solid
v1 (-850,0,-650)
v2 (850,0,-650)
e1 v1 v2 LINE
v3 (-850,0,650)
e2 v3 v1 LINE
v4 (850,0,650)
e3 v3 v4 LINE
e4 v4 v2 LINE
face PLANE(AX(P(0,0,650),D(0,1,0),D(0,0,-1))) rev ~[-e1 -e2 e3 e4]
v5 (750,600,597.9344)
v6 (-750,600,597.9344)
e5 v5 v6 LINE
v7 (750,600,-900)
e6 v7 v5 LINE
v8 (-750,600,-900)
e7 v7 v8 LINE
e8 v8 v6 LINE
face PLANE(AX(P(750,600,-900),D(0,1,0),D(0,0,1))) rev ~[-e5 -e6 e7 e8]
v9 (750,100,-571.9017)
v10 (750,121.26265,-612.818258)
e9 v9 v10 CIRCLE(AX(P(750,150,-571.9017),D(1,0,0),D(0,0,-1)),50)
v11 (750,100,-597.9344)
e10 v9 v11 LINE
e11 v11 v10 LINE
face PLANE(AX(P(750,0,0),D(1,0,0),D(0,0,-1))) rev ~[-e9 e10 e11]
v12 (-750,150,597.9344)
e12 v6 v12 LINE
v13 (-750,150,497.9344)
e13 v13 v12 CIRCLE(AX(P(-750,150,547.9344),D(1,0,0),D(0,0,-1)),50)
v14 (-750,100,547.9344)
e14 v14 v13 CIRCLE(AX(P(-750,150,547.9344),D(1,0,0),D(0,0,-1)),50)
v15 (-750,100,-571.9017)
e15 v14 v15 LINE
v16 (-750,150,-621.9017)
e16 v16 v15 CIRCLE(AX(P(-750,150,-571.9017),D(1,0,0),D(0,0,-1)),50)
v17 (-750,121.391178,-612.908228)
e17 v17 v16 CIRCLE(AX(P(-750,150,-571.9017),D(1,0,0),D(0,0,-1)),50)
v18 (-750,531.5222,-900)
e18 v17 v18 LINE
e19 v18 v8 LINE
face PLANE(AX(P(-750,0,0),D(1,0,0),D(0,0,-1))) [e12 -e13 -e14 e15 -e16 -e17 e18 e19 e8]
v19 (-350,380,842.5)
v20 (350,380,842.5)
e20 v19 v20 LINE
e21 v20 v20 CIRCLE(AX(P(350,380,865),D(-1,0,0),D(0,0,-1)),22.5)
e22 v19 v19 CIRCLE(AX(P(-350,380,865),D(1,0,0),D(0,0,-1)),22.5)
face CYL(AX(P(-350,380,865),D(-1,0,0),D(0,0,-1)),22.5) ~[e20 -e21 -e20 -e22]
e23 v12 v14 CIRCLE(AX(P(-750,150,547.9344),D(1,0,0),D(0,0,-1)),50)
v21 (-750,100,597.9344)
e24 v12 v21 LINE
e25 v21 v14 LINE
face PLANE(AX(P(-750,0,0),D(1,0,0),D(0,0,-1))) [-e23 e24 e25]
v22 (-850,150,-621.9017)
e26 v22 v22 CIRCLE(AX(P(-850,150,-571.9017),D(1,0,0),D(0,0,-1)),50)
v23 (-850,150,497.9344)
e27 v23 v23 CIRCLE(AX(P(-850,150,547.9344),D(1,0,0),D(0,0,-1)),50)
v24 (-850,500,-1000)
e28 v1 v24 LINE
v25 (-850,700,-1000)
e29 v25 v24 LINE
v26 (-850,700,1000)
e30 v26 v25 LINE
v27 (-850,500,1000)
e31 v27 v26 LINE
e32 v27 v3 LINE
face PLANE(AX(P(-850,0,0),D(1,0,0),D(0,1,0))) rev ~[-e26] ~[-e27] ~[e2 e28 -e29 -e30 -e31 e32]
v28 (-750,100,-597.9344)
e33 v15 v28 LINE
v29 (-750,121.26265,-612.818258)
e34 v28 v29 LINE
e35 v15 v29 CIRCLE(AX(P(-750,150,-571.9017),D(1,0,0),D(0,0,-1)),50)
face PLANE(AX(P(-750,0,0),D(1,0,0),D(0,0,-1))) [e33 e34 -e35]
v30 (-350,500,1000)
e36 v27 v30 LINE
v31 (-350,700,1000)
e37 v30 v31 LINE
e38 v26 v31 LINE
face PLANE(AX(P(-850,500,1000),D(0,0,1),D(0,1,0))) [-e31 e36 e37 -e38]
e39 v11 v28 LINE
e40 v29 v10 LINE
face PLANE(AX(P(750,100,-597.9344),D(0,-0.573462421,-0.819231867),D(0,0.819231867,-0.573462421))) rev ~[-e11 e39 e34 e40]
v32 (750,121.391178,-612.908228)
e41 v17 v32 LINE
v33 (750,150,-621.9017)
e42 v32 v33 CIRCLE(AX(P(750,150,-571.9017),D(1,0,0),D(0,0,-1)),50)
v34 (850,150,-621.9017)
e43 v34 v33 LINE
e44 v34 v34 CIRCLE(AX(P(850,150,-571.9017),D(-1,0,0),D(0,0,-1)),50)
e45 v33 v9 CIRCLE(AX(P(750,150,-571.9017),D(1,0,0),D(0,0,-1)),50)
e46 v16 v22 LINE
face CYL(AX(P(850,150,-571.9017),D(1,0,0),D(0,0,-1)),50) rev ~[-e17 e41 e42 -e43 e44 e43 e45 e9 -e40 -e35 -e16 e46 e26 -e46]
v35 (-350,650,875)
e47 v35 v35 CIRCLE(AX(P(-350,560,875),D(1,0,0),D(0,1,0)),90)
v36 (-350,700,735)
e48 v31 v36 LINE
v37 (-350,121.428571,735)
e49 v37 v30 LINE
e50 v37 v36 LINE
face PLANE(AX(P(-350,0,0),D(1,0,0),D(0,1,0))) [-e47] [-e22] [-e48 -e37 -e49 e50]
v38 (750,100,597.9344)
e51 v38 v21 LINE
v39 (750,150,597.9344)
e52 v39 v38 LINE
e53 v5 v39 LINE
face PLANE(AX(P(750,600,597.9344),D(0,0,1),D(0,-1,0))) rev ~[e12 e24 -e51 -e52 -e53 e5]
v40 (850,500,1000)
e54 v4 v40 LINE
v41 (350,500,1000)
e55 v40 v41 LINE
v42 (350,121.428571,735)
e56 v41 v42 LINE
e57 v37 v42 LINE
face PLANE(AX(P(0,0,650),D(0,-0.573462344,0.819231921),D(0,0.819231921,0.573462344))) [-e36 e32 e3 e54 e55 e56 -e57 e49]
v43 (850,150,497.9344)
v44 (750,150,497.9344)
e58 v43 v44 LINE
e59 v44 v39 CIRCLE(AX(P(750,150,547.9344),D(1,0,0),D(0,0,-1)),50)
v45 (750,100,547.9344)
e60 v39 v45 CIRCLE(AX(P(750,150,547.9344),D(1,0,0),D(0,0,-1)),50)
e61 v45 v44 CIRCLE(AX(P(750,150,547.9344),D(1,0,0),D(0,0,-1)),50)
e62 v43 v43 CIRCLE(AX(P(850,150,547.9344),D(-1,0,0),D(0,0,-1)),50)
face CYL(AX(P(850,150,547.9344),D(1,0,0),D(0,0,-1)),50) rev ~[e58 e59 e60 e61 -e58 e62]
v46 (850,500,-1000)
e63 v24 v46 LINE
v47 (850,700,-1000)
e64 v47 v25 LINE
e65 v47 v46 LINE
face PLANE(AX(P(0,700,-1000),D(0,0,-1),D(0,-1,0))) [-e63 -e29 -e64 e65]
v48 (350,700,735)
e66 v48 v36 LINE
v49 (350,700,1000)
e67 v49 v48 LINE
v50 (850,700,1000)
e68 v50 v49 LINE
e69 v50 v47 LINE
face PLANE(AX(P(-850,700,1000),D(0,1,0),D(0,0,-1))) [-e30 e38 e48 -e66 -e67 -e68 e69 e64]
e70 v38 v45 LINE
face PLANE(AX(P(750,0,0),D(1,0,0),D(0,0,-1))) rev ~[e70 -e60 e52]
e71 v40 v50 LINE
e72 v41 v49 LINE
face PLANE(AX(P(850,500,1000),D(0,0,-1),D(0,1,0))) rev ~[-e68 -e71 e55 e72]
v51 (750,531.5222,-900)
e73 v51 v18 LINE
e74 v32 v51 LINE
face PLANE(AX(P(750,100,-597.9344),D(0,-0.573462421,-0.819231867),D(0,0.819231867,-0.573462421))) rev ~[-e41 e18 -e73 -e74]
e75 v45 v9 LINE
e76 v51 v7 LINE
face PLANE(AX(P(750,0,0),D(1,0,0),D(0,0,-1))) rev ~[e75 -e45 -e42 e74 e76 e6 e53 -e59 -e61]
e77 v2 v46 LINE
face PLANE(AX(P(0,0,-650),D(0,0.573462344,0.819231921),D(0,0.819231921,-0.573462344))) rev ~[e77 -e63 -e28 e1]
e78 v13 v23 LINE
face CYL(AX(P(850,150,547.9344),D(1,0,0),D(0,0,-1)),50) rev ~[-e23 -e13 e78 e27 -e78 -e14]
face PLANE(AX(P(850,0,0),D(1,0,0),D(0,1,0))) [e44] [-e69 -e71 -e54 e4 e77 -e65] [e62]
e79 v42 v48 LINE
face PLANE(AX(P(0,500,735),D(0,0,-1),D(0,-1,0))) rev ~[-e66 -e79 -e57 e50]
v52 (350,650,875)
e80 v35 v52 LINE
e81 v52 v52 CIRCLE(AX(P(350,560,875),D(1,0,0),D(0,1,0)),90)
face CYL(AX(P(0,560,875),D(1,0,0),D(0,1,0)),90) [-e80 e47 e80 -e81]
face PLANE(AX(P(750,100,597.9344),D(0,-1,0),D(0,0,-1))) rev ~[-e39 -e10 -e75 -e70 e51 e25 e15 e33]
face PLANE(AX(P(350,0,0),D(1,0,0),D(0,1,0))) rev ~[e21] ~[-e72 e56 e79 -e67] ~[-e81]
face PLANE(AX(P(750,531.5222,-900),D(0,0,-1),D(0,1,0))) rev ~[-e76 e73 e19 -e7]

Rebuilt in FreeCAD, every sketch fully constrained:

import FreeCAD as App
import Part
import Sketcher

V = App.Vector
Q = App.Units.Quantity

doc = App.newDocument("Part")
params = doc.addObject("Spreadsheet::Sheet", "Params")
for row, (alias, value) in enumerate([
    ("sketch1_diameter", "180 mm"),
    ("sketch1_width", "200 mm"),
    ("sketch1_height", "1300 mm"),
    ("sketch1_height2", "1735 mm"),
    ("pad1_length", "1700 mm"),
    ("sketch2_width", "200 mm"),
    ("sketch2_height", "1300 mm"),
    ("sketch2_height2", "265 mm"),
    ("pad2_length", "500 mm"),
    ("sketch3_width", "200 mm"),
    ("sketch3_height", "1300 mm"),
    ("sketch3_height2", "265 mm"),
    ("pad3_length", "500 mm"),
    ("sketch4_diameter", "45 mm"),
    ("sketch5_width", "500 mm"),
    ("sketch5_length", "526.74 mm"),
    ("pocket1_length", "1500 mm"),
    ("sketch6_diameter", "100 mm"),
], start=1):
    params.set(f"A{row}", alias)
    params.set(f"B{row}", "=" + value)
    params.setAlias(f"B{row}", alias)

body = doc.addObject("PartDesign::Body", "Body")
body.AllowCompound = True

# Sketch on YZ plane
sketch1 = body.newObject("Sketcher::SketchObject", "Sketch")
sketch1.AttachmentSupport = (doc.getObject("YZ_Plane"), [""])
sketch1.MapMode = "FlatFace"
sketch1.addGeometry([
    Part.Circle(V(560, 875, 0), V(0, 0, 1), 90),  # 0
    Part.LineSegment(V(121, 735, 0), V(0, 650, 0)),  # 1
    Part.LineSegment(V(0, 650, 0), V(0, -650, 0)),  # 2
    Part.LineSegment(V(0, -650, 0), V(500, -1000, 0)),  # 3
    Part.LineSegment(V(500, -1000, 0), V(700, -1000, 0)),  # 4
    Part.LineSegment(V(700, -1000, 0), V(700, 735, 0)),  # 5
    Part.LineSegment(V(700, 735, 0), V(121, 735, 0)),  # 6
], False)
sketch1.addConstraint([
    Sketcher.Constraint("Coincident", 1, 2, 2, 1),
    Sketcher.Constraint("Coincident", 2, 2, 3, 1),
    Sketcher.Constraint("Coincident", 3, 2, 4, 1),
    Sketcher.Constraint("Coincident", 4, 2, 5, 1),
    Sketcher.Constraint("Coincident", 5, 2, 6, 1),
    Sketcher.Constraint("Coincident", 6, 2, 1, 1),
    Sketcher.Constraint("Vertical", 2),
    Sketcher.Constraint("Horizontal", 4),
    Sketcher.Constraint("Vertical", 5),
    Sketcher.Constraint("Horizontal", 6),
    Sketcher.Constraint("Symmetric", 1, 2, 2, 2, -1, 1),
    Sketcher.Constraint("Diameter", 0, Q("180 mm")),
    Sketcher.Constraint("DistanceX", 4, 1, 4, 2, Q("200 mm")),
    Sketcher.Constraint("DistanceY", 2, 2, 2, 1, Q("1300 mm")),
    Sketcher.Constraint("DistanceX", -1, 1, 3, 2, Q("500 mm")),
    Sketcher.Constraint("DistanceX", 0, 3, 4, 2, Q("140 mm")),
    Sketcher.Constraint("DistanceY", 5, 2, 0, 3, Q("140 mm")),
    Sketcher.Constraint("DistanceY", 5, 1, 5, 2, Q("1735 mm")),
    Sketcher.Constraint("DistanceY", -1, 1, 0, 3, Q("875 mm")),
    Sketcher.Constraint("DistanceX", 6, 2, 6, 1, Q("578.5714 mm")),
])
sketch1.setExpression("Constraints[11]", "Params.sketch1_diameter")
sketch1.setExpression("Constraints[12]", "Params.sketch1_width")
sketch1.setExpression("Constraints[13]", "Params.sketch1_height")
sketch1.setExpression("Constraints[17]", "Params.sketch1_height2")
pad1 = body.newObject("PartDesign::Pad", "Pad")
pad1.Profile = sketch1
pad1.setExpression("Length", "Params.pad1_length")
pad1.Midplane = True

# Sketch on YZ plane
sketch2 = body.newObject("Sketcher::SketchObject", "Sketch001")
sketch2.AttachmentSupport = (doc.getObject("YZ_Plane"), [""])
sketch2.MapMode = "FlatFace"
sketch2.AttachmentOffset = App.Placement(V(0, 0, 850), App.Rotation())
sketch2.addGeometry([
    Part.LineSegment(V(700, 1000, 0), V(500, 1000, 0)),  # 0
    Part.LineSegment(V(500, 1000, 0), V(0, 650, 0)),  # 1
    Part.LineSegment(V(0, 650, 0), V(0, -650, 0)),  # 2
    Part.LineSegment(V(0, -650, 0), V(500, -1000, 0)),  # 3
    Part.LineSegment(V(500, -1000, 0), V(500, 735, 0)),  # 4
    Part.LineSegment(V(500, 735, 0), V(700, 735, 0)),  # 5
    Part.LineSegment(V(700, 735, 0), V(700, 1000, 0)),  # 6
], False)
sketch2.addConstraint([
    Sketcher.Constraint("Coincident", 0, 2, 1, 1),
    Sketcher.Constraint("Coincident", 1, 2, 2, 1),
    Sketcher.Constraint("Coincident", 2, 2, 3, 1),
    Sketcher.Constraint("Coincident", 3, 2, 4, 1),
    Sketcher.Constraint("Coincident", 4, 2, 5, 1),
    Sketcher.Constraint("Coincident", 5, 2, 6, 1),
    Sketcher.Constraint("Coincident", 6, 2, 0, 1),
    Sketcher.Constraint("Horizontal", 0),
    Sketcher.Constraint("Vertical", 2),
    Sketcher.Constraint("Vertical", 4),
    Sketcher.Constraint("Horizontal", 5),
    Sketcher.Constraint("Vertical", 6),
    Sketcher.Constraint("Symmetric", 1, 2, 2, 2, -1, 1),
    Sketcher.Constraint("Symmetric", 0, 2, 3, 2, -1),
    Sketcher.Constraint("DistanceX", 0, 2, 0, 1, Q("200 mm")),
    Sketcher.Constraint("DistanceY", 2, 2, 2, 1, Q("1300 mm")),
    Sketcher.Constraint("DistanceY", 6, 1, 6, 2, Q("265 mm")),
    Sketcher.Constraint("DistanceX", -1, 1, 0, 2, Q("500 mm")),
    Sketcher.Constraint("DistanceY", 3, 2, 0, 2, Q("2000 mm")),
])
sketch2.setExpression("Constraints[14]", "Params.sketch2_width")
sketch2.setExpression("Constraints[15]", "Params.sketch2_height")
sketch2.setExpression("Constraints[16]", "Params.sketch2_height2")
pad2 = body.newObject("PartDesign::Pad", "Pad001")
pad2.Profile = sketch2
pad2.setExpression("Length", "Params.pad2_length")
pad2.Reversed = True

# Sketch on YZ plane
sketch3 = body.newObject("Sketcher::SketchObject", "Sketch002")
sketch3.AttachmentSupport = (doc.getObject("YZ_Plane"), [""])
sketch3.MapMode = "FlatFace"
sketch3.AttachmentOffset = App.Placement(V(0, 0, -850), App.Rotation())
sketch3.addGeometry([
    Part.LineSegment(V(700, 1000, 0), V(500, 1000, 0)),  # 0
    Part.LineSegment(V(500, 1000, 0), V(0, 650, 0)),  # 1
    Part.LineSegment(V(0, 650, 0), V(0, -650, 0)),  # 2
    Part.LineSegment(V(0, -650, 0), V(500, -1000, 0)),  # 3
    Part.LineSegment(V(500, -1000, 0), V(500, 735, 0)),  # 4
    Part.LineSegment(V(500, 735, 0), V(700, 735, 0)),  # 5
    Part.LineSegment(V(700, 735, 0), V(700, 1000, 0)),  # 6
], False)
sketch3.addConstraint([
    Sketcher.Constraint("Coincident", 0, 2, 1, 1),
    Sketcher.Constraint("Coincident", 1, 2, 2, 1),
    Sketcher.Constraint("Coincident", 2, 2, 3, 1),
    Sketcher.Constraint("Coincident", 3, 2, 4, 1),
    Sketcher.Constraint("Coincident", 4, 2, 5, 1),
    Sketcher.Constraint("Coincident", 5, 2, 6, 1),
    Sketcher.Constraint("Coincident", 6, 2, 0, 1),
    Sketcher.Constraint("Horizontal", 0),
    Sketcher.Constraint("Vertical", 2),
    Sketcher.Constraint("Vertical", 4),
    Sketcher.Constraint("Horizontal", 5),
    Sketcher.Constraint("Vertical", 6),
    Sketcher.Constraint("Symmetric", 1, 2, 2, 2, -1, 1),
    Sketcher.Constraint("Symmetric", 0, 2, 3, 2, -1),
    Sketcher.Constraint("DistanceX", 0, 2, 0, 1, Q("200 mm")),
    Sketcher.Constraint("DistanceY", 2, 2, 2, 1, Q("1300 mm")),
    Sketcher.Constraint("DistanceY", 6, 1, 6, 2, Q("265 mm")),
    Sketcher.Constraint("DistanceX", -1, 1, 0, 2, Q("500 mm")),
    Sketcher.Constraint("DistanceY", 3, 2, 0, 2, Q("2000 mm")),
])
sketch3.setExpression("Constraints[14]", "Params.sketch3_width")
sketch3.setExpression("Constraints[15]", "Params.sketch3_height")
sketch3.setExpression("Constraints[16]", "Params.sketch3_height2")
pad3 = body.newObject("PartDesign::Pad", "Pad002")
pad3.Profile = sketch3
pad3.setExpression("Length", "Params.pad3_length")

# Sketch on YZ plane
sketch4 = body.newObject("Sketcher::SketchObject", "Sketch003")
sketch4.AttachmentSupport = (doc.getObject("YZ_Plane"), [""])
sketch4.MapMode = "FlatFace"
sketch4.AttachmentOffset = App.Placement(V(0, 0, -350), App.Rotation())
sketch4.addGeometry(Part.Circle(V(380, 865, 0), V(0, 0, 1), 22), False)
sketch4.addConstraint([
    Sketcher.Constraint("Diameter", 0, Q("45 mm")),
    Sketcher.Constraint("DistanceX", -1, 1, 0, 3, Q("380 mm")),
    Sketcher.Constraint("DistanceY", -1, 1, 0, 3, Q("865 mm")),
])
sketch4.setExpression("Constraints[0]", "Params.sketch4_diameter")
pad4 = body.newObject("PartDesign::Pad", "Pad003")
pad4.Profile = sketch4
pad4.Type = "UpToFirst"

# Sketch on YZ plane
sketch5 = body.newObject("Sketcher::SketchObject", "Sketch004")
sketch5.AttachmentSupport = (doc.getObject("YZ_Plane"), [""])
sketch5.MapMode = "FlatFace"
sketch5.AttachmentOffset = App.Placement(V(0, 0, 750), App.Rotation())
sketch5.addGeometry([
    Part.LineSegment(V(600, -900, 0), V(600, 598, 0)),  # 0
    Part.LineSegment(V(600, 598, 0), V(100, 598, 0)),  # 1
    Part.LineSegment(V(100, 598, 0), V(100, -598, 0)),  # 2
    Part.LineSegment(V(100, -598, 0), V(532, -900, 0)),  # 3
    Part.LineSegment(V(532, -900, 0), V(600, -900, 0)),  # 4
], False)
sketch5.addConstraint([
    Sketcher.Constraint("Coincident", 0, 2, 1, 1),
    Sketcher.Constraint("Coincident", 1, 2, 2, 1),
    Sketcher.Constraint("Coincident", 2, 2, 3, 1),
    Sketcher.Constraint("Coincident", 3, 2, 4, 1),
    Sketcher.Constraint("Coincident", 4, 2, 0, 1),
    Sketcher.Constraint("Vertical", 0),
    Sketcher.Constraint("Horizontal", 1),
    Sketcher.Constraint("Vertical", 2),
    Sketcher.Constraint("Horizontal", 4),
    Sketcher.Constraint("DistanceX", -1, 1, 1, 2, Q("100 mm")),
    Sketcher.Constraint("DistanceX", 1, 2, 1, 1, Q("500 mm")),
    Sketcher.Constraint("DistanceY", 3, 2, -1, 1, Q("900 mm")),
    Sketcher.Constraint("Distance", 3, Q("526.74 mm")),
    Sketcher.Constraint("DistanceX", 4, 1, 4, 2, Q("68.4778 mm")),
    Sketcher.Constraint("DistanceY", 0, 1, 0, 2, Q("1497.9344 mm")),
])
sketch5.setExpression("Constraints[10]", "Params.sketch5_width")
sketch5.setExpression("Constraints[12]", "Params.sketch5_length")
pocket1 = body.newObject("PartDesign::Pocket", "Pocket")
pocket1.Profile = sketch5
pocket1.setExpression("Length", "Params.pocket1_length")

# Sketch on YZ plane
sketch6 = body.newObject("Sketcher::SketchObject", "Sketch005")
sketch6.AttachmentSupport = (doc.getObject("YZ_Plane"), [""])
sketch6.MapMode = "FlatFace"
sketch6.AttachmentOffset = App.Placement(V(0, 0, 850), App.Rotation())
sketch6.addGeometry([
    Part.Circle(V(150, 548, 0), V(0, 0, 1), 50),
    Part.Circle(V(150, -572, 0), V(0, 0, 1), 50),
], False)
sketch6.addConstraint([
    Sketcher.Constraint("Equal", 0, 1),
    Sketcher.Constraint("Vertical", 0, 3, 1, 3),
    Sketcher.Constraint("Diameter", 0, Q("100 mm")),
    Sketcher.Constraint("DistanceX", -1, 1, 0, 3, Q("150 mm")),
    Sketcher.Constraint("DistanceY", 1, 3, 0, 3, Q("1119.836 mm")),
    Sketcher.Constraint("DistanceY", -1, 1, 0, 3, Q("547.9344 mm")),
])
sketch6.setExpression("Constraints[2]", "Params.sketch6_diameter")
pocket2 = body.newObject("PartDesign::Pocket", "Pocket001")
pocket2.Profile = sketch6
pocket2.Type = "ThroughAll"

doc.recompute()
